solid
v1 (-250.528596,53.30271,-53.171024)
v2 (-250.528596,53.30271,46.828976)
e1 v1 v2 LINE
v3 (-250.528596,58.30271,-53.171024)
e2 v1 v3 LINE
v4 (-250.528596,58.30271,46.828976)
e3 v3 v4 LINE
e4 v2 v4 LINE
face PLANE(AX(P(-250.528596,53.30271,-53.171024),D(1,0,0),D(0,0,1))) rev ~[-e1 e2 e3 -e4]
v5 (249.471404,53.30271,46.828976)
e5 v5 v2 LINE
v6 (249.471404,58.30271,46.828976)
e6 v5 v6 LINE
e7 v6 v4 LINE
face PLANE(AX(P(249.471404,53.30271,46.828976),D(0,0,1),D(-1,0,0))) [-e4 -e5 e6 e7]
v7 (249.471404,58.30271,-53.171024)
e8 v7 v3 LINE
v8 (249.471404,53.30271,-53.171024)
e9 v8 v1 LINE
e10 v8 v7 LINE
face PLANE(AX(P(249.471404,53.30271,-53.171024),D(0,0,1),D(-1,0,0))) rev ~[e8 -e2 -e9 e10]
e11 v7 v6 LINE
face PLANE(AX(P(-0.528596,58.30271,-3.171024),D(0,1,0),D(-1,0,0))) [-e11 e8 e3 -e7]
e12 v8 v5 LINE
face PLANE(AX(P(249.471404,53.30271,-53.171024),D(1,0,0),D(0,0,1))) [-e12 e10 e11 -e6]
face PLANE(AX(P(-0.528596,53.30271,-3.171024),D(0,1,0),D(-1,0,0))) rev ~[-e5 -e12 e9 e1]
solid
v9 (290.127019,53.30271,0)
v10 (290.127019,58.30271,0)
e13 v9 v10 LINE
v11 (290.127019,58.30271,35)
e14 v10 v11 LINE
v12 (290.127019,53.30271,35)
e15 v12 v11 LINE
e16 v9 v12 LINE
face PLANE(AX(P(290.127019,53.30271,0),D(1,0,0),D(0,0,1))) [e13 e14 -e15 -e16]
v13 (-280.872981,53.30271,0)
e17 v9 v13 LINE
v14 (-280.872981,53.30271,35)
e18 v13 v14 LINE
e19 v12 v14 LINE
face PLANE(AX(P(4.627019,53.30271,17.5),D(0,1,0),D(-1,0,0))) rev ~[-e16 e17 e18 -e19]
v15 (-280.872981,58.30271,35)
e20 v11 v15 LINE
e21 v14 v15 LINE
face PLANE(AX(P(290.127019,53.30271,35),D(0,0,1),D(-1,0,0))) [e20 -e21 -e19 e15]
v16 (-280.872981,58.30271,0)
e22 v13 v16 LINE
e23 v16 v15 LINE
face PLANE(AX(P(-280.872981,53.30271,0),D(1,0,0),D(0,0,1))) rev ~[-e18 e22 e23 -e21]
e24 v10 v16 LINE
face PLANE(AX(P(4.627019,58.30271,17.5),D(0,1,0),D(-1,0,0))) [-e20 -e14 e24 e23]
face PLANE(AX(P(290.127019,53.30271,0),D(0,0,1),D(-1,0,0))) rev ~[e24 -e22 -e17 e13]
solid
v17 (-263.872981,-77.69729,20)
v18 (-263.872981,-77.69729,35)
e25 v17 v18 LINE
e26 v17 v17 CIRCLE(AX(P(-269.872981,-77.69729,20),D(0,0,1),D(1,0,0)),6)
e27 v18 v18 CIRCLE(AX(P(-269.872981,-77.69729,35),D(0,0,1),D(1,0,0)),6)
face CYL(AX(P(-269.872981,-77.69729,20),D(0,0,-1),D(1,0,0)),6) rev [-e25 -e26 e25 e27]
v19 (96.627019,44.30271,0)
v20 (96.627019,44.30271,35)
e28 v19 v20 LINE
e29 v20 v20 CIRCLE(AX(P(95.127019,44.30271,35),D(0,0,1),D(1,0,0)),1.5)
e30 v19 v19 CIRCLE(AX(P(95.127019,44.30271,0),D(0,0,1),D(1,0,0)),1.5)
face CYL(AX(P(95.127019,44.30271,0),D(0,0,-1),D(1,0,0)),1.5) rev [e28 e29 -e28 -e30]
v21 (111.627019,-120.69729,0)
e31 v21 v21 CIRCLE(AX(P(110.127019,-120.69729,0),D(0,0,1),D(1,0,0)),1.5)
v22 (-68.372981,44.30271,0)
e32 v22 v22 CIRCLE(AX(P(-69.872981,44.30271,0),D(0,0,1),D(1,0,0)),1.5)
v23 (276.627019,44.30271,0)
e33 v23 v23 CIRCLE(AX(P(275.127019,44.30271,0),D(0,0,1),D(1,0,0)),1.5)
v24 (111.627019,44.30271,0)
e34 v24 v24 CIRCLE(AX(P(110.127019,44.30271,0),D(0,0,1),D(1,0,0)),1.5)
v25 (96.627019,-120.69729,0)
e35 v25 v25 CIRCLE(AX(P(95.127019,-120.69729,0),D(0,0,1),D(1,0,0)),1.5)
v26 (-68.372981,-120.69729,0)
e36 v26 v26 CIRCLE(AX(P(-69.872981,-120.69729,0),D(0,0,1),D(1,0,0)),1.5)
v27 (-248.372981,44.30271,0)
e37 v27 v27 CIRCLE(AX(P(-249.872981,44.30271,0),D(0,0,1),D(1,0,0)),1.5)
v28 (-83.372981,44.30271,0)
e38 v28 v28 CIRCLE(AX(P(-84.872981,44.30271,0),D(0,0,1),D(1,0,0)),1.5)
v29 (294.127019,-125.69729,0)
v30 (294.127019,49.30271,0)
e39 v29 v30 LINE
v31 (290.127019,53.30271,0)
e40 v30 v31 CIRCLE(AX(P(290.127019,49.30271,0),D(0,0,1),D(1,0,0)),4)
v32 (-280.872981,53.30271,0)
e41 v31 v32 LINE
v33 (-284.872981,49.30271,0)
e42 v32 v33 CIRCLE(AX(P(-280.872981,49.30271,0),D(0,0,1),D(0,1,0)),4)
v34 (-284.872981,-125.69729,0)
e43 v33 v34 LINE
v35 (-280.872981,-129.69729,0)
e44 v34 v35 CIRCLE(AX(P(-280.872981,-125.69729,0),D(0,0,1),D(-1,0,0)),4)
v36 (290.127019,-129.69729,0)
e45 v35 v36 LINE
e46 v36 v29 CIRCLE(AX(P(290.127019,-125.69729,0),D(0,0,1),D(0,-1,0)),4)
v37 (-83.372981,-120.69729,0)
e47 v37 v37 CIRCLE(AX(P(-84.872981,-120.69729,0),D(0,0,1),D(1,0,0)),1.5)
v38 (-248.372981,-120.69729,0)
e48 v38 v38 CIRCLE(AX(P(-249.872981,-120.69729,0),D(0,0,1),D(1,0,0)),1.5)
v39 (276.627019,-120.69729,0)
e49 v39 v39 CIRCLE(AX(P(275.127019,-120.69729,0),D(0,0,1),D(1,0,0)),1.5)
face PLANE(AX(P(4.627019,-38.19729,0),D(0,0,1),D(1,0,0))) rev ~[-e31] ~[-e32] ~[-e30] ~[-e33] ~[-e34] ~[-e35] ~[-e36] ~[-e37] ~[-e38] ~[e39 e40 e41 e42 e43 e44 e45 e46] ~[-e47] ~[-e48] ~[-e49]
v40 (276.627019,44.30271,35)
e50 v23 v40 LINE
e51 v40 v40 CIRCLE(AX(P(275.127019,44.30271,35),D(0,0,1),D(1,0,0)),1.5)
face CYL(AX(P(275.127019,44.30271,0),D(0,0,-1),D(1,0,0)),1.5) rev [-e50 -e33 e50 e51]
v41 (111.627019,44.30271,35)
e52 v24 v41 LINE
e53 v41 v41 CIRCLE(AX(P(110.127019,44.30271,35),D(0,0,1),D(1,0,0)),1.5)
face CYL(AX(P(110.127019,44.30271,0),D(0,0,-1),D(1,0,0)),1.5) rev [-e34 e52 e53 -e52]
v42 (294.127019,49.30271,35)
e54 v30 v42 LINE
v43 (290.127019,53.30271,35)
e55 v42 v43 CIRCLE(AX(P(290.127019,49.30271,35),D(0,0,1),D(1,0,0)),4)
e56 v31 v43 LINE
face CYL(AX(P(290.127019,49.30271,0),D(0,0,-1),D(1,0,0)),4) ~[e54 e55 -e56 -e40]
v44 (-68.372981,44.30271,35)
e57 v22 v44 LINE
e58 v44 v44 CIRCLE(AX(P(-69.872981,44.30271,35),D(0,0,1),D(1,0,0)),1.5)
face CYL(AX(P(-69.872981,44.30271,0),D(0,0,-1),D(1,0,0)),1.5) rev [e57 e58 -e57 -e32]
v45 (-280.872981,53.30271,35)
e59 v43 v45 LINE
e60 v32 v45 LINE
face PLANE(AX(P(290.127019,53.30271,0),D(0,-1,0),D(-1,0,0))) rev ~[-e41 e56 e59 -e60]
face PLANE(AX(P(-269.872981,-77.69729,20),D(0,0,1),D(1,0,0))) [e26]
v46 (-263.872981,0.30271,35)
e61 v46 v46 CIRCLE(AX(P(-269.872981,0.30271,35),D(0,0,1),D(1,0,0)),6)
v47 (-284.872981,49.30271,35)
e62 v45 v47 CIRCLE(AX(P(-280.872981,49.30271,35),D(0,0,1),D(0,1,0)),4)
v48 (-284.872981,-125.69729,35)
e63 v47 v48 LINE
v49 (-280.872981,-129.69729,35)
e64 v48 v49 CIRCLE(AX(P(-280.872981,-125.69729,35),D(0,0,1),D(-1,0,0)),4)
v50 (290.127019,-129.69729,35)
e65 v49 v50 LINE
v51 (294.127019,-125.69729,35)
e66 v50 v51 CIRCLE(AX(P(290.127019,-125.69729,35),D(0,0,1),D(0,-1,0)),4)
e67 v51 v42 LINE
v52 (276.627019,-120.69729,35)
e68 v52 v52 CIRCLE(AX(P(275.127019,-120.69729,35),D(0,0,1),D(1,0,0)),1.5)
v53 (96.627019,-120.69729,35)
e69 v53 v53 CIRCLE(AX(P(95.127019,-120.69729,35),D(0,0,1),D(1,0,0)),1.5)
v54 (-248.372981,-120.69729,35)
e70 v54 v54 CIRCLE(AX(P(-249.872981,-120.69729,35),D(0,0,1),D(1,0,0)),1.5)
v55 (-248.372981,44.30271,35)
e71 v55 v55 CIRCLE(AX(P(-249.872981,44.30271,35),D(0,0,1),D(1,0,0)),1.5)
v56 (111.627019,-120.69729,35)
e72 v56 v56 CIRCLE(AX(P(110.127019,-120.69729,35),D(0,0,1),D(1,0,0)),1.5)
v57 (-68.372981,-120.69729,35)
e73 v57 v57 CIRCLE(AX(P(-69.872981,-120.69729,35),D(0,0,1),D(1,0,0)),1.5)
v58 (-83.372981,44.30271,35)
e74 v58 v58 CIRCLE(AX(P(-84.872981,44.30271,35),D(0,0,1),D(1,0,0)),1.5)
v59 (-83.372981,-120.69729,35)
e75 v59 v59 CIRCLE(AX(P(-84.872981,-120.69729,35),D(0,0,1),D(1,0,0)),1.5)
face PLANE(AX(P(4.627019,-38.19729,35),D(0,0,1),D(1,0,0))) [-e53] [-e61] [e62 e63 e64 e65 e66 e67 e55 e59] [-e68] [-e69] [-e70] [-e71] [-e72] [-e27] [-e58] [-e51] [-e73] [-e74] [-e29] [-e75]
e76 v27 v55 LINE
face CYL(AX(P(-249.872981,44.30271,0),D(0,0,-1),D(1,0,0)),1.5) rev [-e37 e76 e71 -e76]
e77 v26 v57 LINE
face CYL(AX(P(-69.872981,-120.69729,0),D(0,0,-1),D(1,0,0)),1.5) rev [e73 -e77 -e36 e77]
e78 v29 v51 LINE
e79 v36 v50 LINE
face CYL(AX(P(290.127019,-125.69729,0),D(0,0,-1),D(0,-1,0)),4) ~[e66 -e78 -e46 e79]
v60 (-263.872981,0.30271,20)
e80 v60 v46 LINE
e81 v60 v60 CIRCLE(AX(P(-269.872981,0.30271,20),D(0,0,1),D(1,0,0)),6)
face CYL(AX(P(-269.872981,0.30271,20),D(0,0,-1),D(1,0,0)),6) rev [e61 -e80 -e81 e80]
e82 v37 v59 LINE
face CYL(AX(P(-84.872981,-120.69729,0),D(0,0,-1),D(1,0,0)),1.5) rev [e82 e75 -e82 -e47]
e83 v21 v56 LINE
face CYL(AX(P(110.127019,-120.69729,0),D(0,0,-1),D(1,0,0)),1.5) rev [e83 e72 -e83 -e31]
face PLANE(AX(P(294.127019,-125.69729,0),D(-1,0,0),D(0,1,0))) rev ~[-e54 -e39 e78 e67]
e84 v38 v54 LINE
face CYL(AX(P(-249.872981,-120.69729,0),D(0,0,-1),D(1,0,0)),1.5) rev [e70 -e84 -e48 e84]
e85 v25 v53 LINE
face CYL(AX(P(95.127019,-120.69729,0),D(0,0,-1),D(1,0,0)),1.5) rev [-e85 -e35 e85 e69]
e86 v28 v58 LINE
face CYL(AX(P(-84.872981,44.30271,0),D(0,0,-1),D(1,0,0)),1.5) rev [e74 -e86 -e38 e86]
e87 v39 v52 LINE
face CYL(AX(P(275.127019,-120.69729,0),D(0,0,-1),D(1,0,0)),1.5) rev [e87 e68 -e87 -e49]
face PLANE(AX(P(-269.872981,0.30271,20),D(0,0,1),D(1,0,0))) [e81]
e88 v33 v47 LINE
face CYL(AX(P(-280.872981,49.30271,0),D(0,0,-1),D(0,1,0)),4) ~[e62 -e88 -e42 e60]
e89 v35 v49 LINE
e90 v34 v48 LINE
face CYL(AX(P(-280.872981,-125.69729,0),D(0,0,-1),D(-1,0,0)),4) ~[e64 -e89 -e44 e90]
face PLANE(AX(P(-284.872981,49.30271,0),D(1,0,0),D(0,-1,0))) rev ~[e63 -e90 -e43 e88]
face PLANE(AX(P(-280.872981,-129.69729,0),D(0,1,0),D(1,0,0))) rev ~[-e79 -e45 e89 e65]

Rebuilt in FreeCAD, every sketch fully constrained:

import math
import FreeCAD as App
import Part
import Sketcher
from FreeCAD import Vector


def add_polygon(sketch, points):
    """Adds a closed chain of lines whose ends are joined by coincident constraints."""
    first, n = sketch.GeometryCount, len(points)
    for a, b in zip(points, points[1:] + points[:1]):
        sketch.addGeometry(Part.LineSegment(App.Vector(*a, 0), App.Vector(*b, 0)), False)
    for i in range(n):
        sketch.addConstraint(Sketcher.Constraint("Coincident", first + i, 2, first + (i + 1) % n, 1))

doc = App.newDocument("Part")
params = doc.addObject("Spreadsheet::Sheet", "Params")
for row, (alias, value) in enumerate([
    ("sketch1_diameter", "3 mm"),
    ("sketch1_radius", "4 mm"),
    ("sketch1_width", "571 mm"),
    ("sketch1_height", "175 mm"),
    ("pad1_length", "35 mm"),
    ("sketch2_diameter", "12 mm"),
    ("pocket1_length", "15 mm"),
    ("sketch3_width", "571 mm"),
    ("sketch3_height", "35 mm"),
    ("pad2_length", "5 mm"),
    ("sketch4_width", "500 mm"),
    ("sketch4_height", "100 mm"),
    ("pad3_length", "5 mm"),
], start=1):
    params.set(f"A{row}", alias)
    params.set(f"B{row}", "=" + value)
    params.setAlias(f"B{row}", alias)

body = doc.addObject("PartDesign::Body", "Body")

# Sketch on XY plane
sketch1 = body.newObject("Sketcher::SketchObject", "Sketch")
sketch1.AttachmentSupport = (doc.getObject("XY_Plane"), [""])
sketch1.MapMode = "FlatFace"
sketch1.addGeometry([
    Part.LineSegment(Vector(290.1, 53.3, 0), Vector(-280.9, 53.3, 0)),  # 0
    Part.ArcOfCircle(Part.Circle(Vector(-280.9, 49.3, 0), Vector(0, 0, 1), 4), math.radians(90), math.radians(180)),  # 1
    Part.LineSegment(Vector(-284.9, 49.3, 0), Vector(-284.9, -125.7, 0)),  # 2
    Part.ArcOfCircle(Part.Circle(Vector(-280.9, -125.7, 0), Vector(0, 0, 1), 4), math.radians(180), math.radians(270)),  # 3
    Part.LineSegment(Vector(-280.9, -129.7, 0), Vector(290.1, -129.7, 0)),  # 4
    Part.ArcOfCircle(Part.Circle(Vector(290.1, -125.7, 0), Vector(0, 0, 1), 4), math.radians(-90), math.radians(0)),  # 5
    Part.LineSegment(Vector(294.1, -125.7, 0), Vector(294.1, 49.3, 0)),  # 6
    Part.ArcOfCircle(Part.Circle(Vector(290.1, 49.3, 0), Vector(0, 0, 1), 4), math.radians(0), math.radians(90)),  # 7
    Part.Circle(Vector(-249.9, -120.7, 0), Vector(0, 0, 1), 1.5),  # 8
    Part.Circle(Vector(-84.9, -120.7, 0), Vector(0, 0, 1), 1.5),  # 9
    Part.Circle(Vector(-69.9, -120.7, 0), Vector(0, 0, 1), 1.5),  # 10
    Part.Circle(Vector(95.1, -120.7, 0), Vector(0, 0, 1), 1.5),  # 11
    Part.Circle(Vector(110.1, -120.7, 0), Vector(0, 0, 1), 1.5),  # 12
    Part.Circle(Vector(275.1, -120.7, 0), Vector(0, 0, 1), 1.5),  # 13
    Part.Circle(Vector(-249.9, 44.3, 0), Vector(0, 0, 1), 1.5),  # 14
    Part.Circle(Vector(-84.9, 44.3, 0), Vector(0, 0, 1), 1.5),  # 15
    Part.Circle(Vector(-69.9, 44.3, 0), Vector(0, 0, 1), 1.5),  # 16
    Part.Circle(Vector(95.1, 44.3, 0), Vector(0, 0, 1), 1.5),  # 17
    Part.Circle(Vector(110.1, 44.3, 0), Vector(0, 0, 1), 1.5),  # 18
    Part.Circle(Vector(275.1, 44.3, 0), Vector(0, 0, 1), 1.5),  # 19
], False)
sketch1.addConstraint([
    Sketcher.Constraint("Tangent", 0, 2, 1, 1),
    Sketcher.Constraint("Tangent", 1, 2, 2, 1),
    Sketcher.Constraint("Tangent", 2, 2, 3, 1),
    Sketcher.Constraint("Tangent", 3, 2, 4, 1),
    Sketcher.Constraint("Tangent", 4, 2, 5, 1),
    Sketcher.Constraint("Tangent", 5, 2, 6, 1),
    Sketcher.Constraint("Tangent", 6, 2, 7, 1),
    Sketcher.Constraint("Tangent", 7, 2, 0, 1),
    Sketcher.Constraint("Horizontal", 0),
    Sketcher.Constraint("Vertical", 2),
    Sketcher.Constraint("Horizontal", 4),
    Sketcher.Constraint("Vertical", 6),
    Sketcher.Constraint("Equal", 1, 3),
    Sketcher.Constraint("Equal", 3, 5),
    Sketcher.Constraint("Equal", 5, 7),
    Sketcher.Constraint("Equal", 8, 9),
    Sketcher.Constraint("Equal", 9, 10),
    Sketcher.Constraint("Equal", 10, 11),
    Sketcher.Constraint("Equal", 11, 12),
    Sketcher.Constraint("Equal", 12, 13),
    Sketcher.Constraint("Equal", 13, 14),
    Sketcher.Constraint("Equal", 14, 15),
    Sketcher.Constraint("Equal", 15, 16),
    Sketcher.Constraint("Equal", 16, 17),
    Sketcher.Constraint("Equal", 17, 18),
    Sketcher.Constraint("Equal", 18, 19),
    Sketcher.Constraint("Horizontal", 8, 3, 9, 3),
    Sketcher.Constraint("Horizontal", 9, 3, 10, 3),
    Sketcher.Constraint("Horizontal", 10, 3, 11, 3),
    Sketcher.Constraint("Horizontal", 11, 3, 12, 3),
    Sketcher.Constraint("Horizontal", 12, 3, 13, 3),
    Sketcher.Constraint("Horizontal", 14, 3, 15, 3),
    Sketcher.Constraint("Horizontal", 15, 3, 16, 3),
    Sketcher.Constraint("Horizontal", 16, 3, 17, 3),
    Sketcher.Constraint("Horizontal", 17, 3, 18, 3),
    Sketcher.Constraint("Horizontal", 18, 3, 19, 3),
    Sketcher.Constraint("Vertical", 8, 3, 14, 3),
    Sketcher.Constraint("Vertical", 9, 3, 15, 3),
    Sketcher.Constraint("Vertical", 10, 3, 16, 3),
    Sketcher.Constraint("Vertical", 11, 3, 17, 3),
    Sketcher.Constraint("Vertical", 12, 3, 18, 3),
    Sketcher.Constraint("Vertical", 13, 3, 19, 3),
    Sketcher.Constraint("Diameter", 8, 3.0),
    Sketcher.Constraint("Radius", 1, 4.0),
    Sketcher.Constraint("DistanceX", 0, 2, 0, 1, 571.0),
    Sketcher.Constraint("DistanceY", 2, 2, 2, 1, 175.0),
    Sketcher.Constraint("DistanceX", 3, 3, 8, 3, 31.0),
    Sketcher.Constraint("DistanceY", 3, 3, 8, 3, 5.0),
    Sketcher.Constraint("DistanceX", 8, 3, 9, 3, 165.0),
    Sketcher.Constraint("DistanceX", 9, 3, 10, 3, 15.0),
    Sketcher.Constraint("DistanceX", 10, 3, 11, 3, 165.0),
    Sketcher.Constraint("DistanceX", 11, 3, 12, 3, 15.0),
    Sketcher.Constraint("DistanceX", 13, 3, 5, 3, 15.0),
    Sketcher.Constraint("DistanceY", 14, 3, 1, 3, 5.0),
    Sketcher.Constraint("DistanceX", 1, 3, -1, 1, 280.872981),
    Sketcher.Constraint("DistanceY", -1, 1, 1, 3, 49.30271),
])
sketch1.setExpression("Constraints[42]", "Params.sketch1_diameter")
sketch1.setExpression("Constraints[43]", "Params.sketch1_radius")
sketch1.setExpression("Constraints[44]", "Params.sketch1_width")
sketch1.setExpression("Constraints[45]", "Params.sketch1_height")
pad1 = body.newObject("PartDesign::Pad", "Pad")
pad1.Profile = sketch1
pad1.setExpression("Length", "Params.pad1_length")

# Sketch on XY plane
sketch2 = body.newObject("Sketcher::SketchObject", "Sketch001")
sketch2.AttachmentSupport = (doc.getObject("XY_Plane"), [""])
sketch2.MapMode = "FlatFace"
sketch2.AttachmentOffset = App.Placement(Vector(0, 0, 20), App.Rotation())
sketch2.addGeometry([
    Part.Circle(Vector(-270, -78, 0), Vector(0, 0, 1), 6),
    Part.Circle(Vector(-270, 0, 0), Vector(0, 0, 1), 6),
], False)
sketch2.addConstraint([
    Sketcher.Constraint("Equal", 0, 1),
    Sketcher.Constraint("Vertical", 0, 3, 1, 3),
    Sketcher.Constraint("Diameter", 0, 12.0),
    Sketcher.Constraint("DistanceY", 0, 3, 1, 3, 78.0),
    Sketcher.Constraint("DistanceX", 0, 3, -1, 1, 269.872981),
    Sketcher.Constraint("DistanceY", 0, 3, -1, 1, 77.69729),
])
sketch2.setExpression("Constraints[2]", "Params.sketch2_diameter")
pocket1 = body.newObject("PartDesign::Pocket", "Pocket")
pocket1.Profile = sketch2
pocket1.setExpression("Length", "Params.pocket1_length")
pocket1.Reversed = True
body2 = doc.addObject("PartDesign::Body", "Body001")

# Sketch on XZ plane
sketch3 = body2.newObject("Sketcher::SketchObject", "Sketch002")
sketch3.AttachmentSupport = (doc.getObject("XZ_Plane001"), [""])
sketch3.MapMode = "FlatFace"
sketch3.AttachmentOffset = App.Placement(Vector(0, 0, -53.30271), App.Rotation())
add_polygon(sketch3, [(290, 35), (290, 0), (-281, 0), (-281, 35)])  # lines 0-3
sketch3.addConstraint([
    Sketcher.Constraint("Vertical", 0),
    Sketcher.Constraint("Horizontal", 1),
    Sketcher.Constraint("Vertical", 2),
    Sketcher.Constraint("Horizontal", 3),
    Sketcher.Constraint("PointOnObject", 0, 2, -1),
    Sketcher.Constraint("DistanceX", 1, 2, 1, 1, 571.0),
    Sketcher.Constraint("DistanceY", 0, 2, 0, 1, 35.0),
    Sketcher.Constraint("DistanceX", -1, 1, 0, 2, 290.127019),
])
sketch3.setExpression("Constraints[9]", "Params.sketch3_width")
sketch3.setExpression("Constraints[10]", "Params.sketch3_height")
pad2 = body2.newObject("PartDesign::Pad", "Pad001")
pad2.Profile = sketch3
pad2.setExpression("Length", "Params.pad2_length")
pad2.Reversed = True
body3 = doc.addObject("PartDesign::Body", "Body002")

# Sketch on XZ plane
sketch4 = body3.newObject("Sketcher::SketchObject", "Sketch003")
sketch4.AttachmentSupport = (doc.getObject("XZ_Plane002"), [""])
sketch4.MapMode = "FlatFace"
sketch4.AttachmentOffset = App.Placement(Vector(0, 0, -53.30271), App.Rotation())
add_polygon(sketch4, [(249, 47), (249, -53), (-251, -53), (-251, 47)])  # lines 0-3
sketch4.addConstraint([
    Sketcher.Constraint("Vertical", 0),
    Sketcher.Constraint("Horizontal", 1),
    Sketcher.Constraint("Vertical", 2),
    Sketcher.Constraint("Horizontal", 3),
    Sketcher.Constraint("DistanceX", 1, 2, 1, 1, 500.0),
    Sketcher.Constraint("DistanceY", 0, 2, 0, 1, 100.0),
    Sketcher.Constraint("DistanceX", -1, 1, 0, 2, 249.471404),
    Sketcher.Constraint("DistanceY", 0, 2, -1, 1, 53.171024),
])
sketch4.setExpression("Constraints[8]", "Params.sketch4_width")
sketch4.setExpression("Constraints[9]", "Params.sketch4_height")
pad3 = body3.newObject("PartDesign::Pad", "Pad002")
pad3.Profile = sketch4
pad3.setExpression("Length", "Params.pad3_length")
pad3.Reversed = True

doc.recompute()
